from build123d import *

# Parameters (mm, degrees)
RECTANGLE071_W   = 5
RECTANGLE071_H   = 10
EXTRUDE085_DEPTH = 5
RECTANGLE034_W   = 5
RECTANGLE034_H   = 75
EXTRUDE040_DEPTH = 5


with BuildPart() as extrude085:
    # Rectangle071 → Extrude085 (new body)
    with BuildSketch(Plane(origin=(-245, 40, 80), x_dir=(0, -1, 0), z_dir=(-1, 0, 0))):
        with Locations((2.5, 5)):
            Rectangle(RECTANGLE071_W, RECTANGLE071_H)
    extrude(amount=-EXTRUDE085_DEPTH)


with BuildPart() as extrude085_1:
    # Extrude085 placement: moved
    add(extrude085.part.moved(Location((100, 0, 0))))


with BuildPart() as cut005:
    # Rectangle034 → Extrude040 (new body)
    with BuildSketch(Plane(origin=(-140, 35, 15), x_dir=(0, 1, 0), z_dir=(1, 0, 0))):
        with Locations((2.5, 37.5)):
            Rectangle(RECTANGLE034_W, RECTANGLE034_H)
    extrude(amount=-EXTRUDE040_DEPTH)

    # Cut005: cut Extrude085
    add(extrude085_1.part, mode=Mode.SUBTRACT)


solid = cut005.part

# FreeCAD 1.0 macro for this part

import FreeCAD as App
import Part
import Sketcher

doc = App.newDocument("Part")
body = doc.addObject("PartDesign::Body", "Body")

sketch1 = body.newObject("Sketcher::SketchObject", "Sketch")
sketch1.AttachmentSupport = (doc.getObject("YZ_Plane"), [""])
sketch1.MapMode = "FlatFace"
sketch1.AttachmentOffset = App.Placement(App.Vector(0, 0, -245), App.Rotation())
sketch1.addGeometry([
    Part.LineSegment(App.Vector(40, 90, 0), App.Vector(40, 80, 0)),
    Part.LineSegment(App.Vector(40, 80, 0), App.Vector(35, 80, 0)),
    Part.LineSegment(App.Vector(35, 80, 0), App.Vector(35, 90, 0)),
    Part.LineSegment(App.Vector(35, 90, 0), App.Vector(40, 90, 0)),
], False)
sketch1.addConstraint([
    Sketcher.Constraint("Coincident", 0, 2, 1, 1),
    Sketcher.Constraint("Coincident", 1, 2, 2, 1),
    Sketcher.Constraint("Coincident", 2, 2, 3, 1),
    Sketcher.Constraint("Coincident", 3, 2, 0, 1),
    Sketcher.Constraint("Vertical", 0),
    Sketcher.Constraint("Horizontal", 1),
    Sketcher.Constraint("Vertical", 2),
    Sketcher.Constraint("Horizontal", 3),
    Sketcher.Constraint("DistanceX", 1, 2, 1, 1, 5.0),
    Sketcher.Constraint("DistanceY", 0, 2, 0, 1, 10.0),
    Sketcher.Constraint("DistanceX", -1, 1, 0, 2, 40.0),
    Sketcher.Constraint("DistanceY", -1, 1, 0, 2, 80.0),
])
pad1 = body.newObject("PartDesign::Pad", "Pad")
pad1.Profile = sketch1
pad1.Length = 5
body2 = doc.addObject("PartDesign::Body", "Body001")
doc.recompute()

body.Placement = App.Placement(App.Vector(100, 0, 0), App.Rotation(App.Vector(0, 0, 1), 0))
boolean = body2.newObject("PartDesign::Boolean", "Boolean")
boolean.Type = "Fuse"
boolean.addObjects([body])
body3 = doc.addObject("PartDesign::Body", "Body002")

sketch2 = body3.newObject("Sketcher::SketchObject", "Sketch001")
sketch2.AttachmentSupport = (doc.getObject("YZ_Plane002"), [""])
sketch2.MapMode = "FlatFace"
sketch2.AttachmentOffset = App.Placement(App.Vector(0, 0, -140), App.Rotation())
sketch2.addGeometry([
    Part.LineSegment(App.Vector(35, 90, 0), App.Vector(35, 15, 0)),
    Part.LineSegment(App.Vector(35, 15, 0), App.Vector(40, 15, 0)),
    Part.LineSegment(App.Vector(40, 15, 0), App.Vector(40, 90, 0)),
    Part.LineSegment(App.Vector(40, 90, 0), App.Vector(35, 90, 0)),
], False)
sketch2.addConstraint([
    Sketcher.Constraint("Coincident", 0, 2, 1, 1),
    Sketcher.Constraint("Coincident", 1, 2, 2, 1),
    Sketcher.Constraint("Coincident", 2, 2, 3, 1),
    Sketcher.Constraint("Coincident", 3, 2, 0, 1),
    Sketcher.Constraint("Vertical", 0),
    Sketcher.Constraint("Horizontal", 1),
    Sketcher.Constraint("Vertical", 2),
    Sketcher.Constraint("Horizontal", 3),
    Sketcher.Constraint("DistanceX", 1, 1, 1, 2, 5.0),
    Sketcher.Constraint("DistanceY", 0, 2, 0, 1, 75.0),
    Sketcher.Constraint("DistanceX", -1, 1, 0, 2, 35.0),
    Sketcher.Constraint("DistanceY", -1, 1, 0, 2, 15.0),
])
pad2 = body3.newObject("PartDesign::Pad", "Pad001")
pad2.Profile = sketch2
pad2.Length = 5
pad2.Reversed = True
doc.recompute()

boolean2 = body3.newObject("PartDesign::Boolean", "Boolean001")
boolean2.Type = "Cut"
boolean2.addObjects([body2])

doc.recompute()
